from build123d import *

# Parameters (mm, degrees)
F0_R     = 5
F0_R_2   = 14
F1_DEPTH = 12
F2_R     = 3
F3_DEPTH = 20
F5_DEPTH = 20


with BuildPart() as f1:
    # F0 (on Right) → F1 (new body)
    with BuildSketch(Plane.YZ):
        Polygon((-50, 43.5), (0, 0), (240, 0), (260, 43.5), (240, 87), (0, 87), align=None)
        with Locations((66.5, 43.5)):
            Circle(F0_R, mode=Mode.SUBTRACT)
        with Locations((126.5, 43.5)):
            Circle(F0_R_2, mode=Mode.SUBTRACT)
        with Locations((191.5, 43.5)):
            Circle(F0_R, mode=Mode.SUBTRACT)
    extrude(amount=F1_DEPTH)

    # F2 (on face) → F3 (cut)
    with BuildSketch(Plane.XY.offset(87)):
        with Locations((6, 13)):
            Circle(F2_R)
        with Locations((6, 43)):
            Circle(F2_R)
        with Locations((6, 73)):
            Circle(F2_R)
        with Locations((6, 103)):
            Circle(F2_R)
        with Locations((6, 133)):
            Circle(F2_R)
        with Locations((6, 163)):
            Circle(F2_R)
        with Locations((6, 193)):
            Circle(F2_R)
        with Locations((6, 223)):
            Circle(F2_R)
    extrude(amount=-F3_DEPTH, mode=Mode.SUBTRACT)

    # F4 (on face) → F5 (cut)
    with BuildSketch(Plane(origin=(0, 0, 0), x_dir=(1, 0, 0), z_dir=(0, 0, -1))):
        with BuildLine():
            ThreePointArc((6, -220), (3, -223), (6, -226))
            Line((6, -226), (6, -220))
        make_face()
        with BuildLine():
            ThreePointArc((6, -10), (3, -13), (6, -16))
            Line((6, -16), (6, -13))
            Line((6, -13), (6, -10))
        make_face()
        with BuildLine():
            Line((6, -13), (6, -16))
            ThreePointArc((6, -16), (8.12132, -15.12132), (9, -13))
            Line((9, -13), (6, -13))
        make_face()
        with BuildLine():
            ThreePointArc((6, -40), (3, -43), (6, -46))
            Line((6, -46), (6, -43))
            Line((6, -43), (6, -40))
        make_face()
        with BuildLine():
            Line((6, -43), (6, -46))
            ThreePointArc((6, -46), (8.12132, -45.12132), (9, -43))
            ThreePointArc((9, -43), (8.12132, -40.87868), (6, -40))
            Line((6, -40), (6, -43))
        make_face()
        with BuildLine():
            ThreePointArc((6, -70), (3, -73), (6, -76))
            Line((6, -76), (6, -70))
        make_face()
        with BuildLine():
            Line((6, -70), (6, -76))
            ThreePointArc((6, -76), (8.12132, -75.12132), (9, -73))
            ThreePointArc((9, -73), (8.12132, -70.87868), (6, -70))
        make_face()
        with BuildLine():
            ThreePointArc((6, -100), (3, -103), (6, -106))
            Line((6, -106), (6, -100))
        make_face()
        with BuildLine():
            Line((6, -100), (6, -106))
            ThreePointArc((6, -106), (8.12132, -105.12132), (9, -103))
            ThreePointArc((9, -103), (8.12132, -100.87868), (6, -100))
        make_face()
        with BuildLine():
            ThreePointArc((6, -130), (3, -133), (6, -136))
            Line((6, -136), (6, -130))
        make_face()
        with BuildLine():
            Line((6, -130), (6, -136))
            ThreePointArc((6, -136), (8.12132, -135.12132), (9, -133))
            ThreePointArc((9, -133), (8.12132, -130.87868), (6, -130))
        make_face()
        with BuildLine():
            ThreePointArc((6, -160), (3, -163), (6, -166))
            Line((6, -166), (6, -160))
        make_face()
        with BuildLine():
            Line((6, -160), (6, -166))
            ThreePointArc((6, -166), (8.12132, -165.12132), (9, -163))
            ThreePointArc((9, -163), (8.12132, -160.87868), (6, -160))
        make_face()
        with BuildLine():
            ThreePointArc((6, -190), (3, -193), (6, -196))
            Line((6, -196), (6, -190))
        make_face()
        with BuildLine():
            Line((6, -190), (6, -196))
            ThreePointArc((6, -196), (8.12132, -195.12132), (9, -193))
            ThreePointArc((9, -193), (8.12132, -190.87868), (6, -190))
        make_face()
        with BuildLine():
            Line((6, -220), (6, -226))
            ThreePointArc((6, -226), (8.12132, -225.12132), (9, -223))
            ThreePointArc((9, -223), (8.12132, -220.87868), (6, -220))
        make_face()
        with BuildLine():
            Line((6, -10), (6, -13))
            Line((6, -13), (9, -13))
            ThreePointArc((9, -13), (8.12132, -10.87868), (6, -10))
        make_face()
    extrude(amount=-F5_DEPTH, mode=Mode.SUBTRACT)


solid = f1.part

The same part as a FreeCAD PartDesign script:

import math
import FreeCAD as App
import Part
import Sketcher


def add_polygon(sketch, points):
    """Adds a closed chain of lines whose ends are joined by coincident constraints."""
    first, n = sketch.GeometryCount, len(points)
    for a, b in zip(points, points[1:] + points[:1]):
        sketch.addGeometry(Part.LineSegment(App.Vector(*a, 0), App.Vector(*b, 0)), False)
    for i in range(n):
        sketch.addConstraint(Sketcher.Constraint("Coincident", first + i, 2, first + (i + 1) % n, 1))

doc = App.newDocument("Part")
params = doc.addObject("Spreadsheet::Sheet", "Params")
for row, (alias, value) in enumerate([
    ("sketch1_diameter", "10 mm"),
    ("sketch1_diameter2", "28 mm"),
    ("sketch1_width", "240 mm"),
    ("pad1_length", "12 mm"),
    ("sketch2_diameter", "6 mm"),
    ("pocket1_length", "20 mm"),
    ("sketch3_radius", "3 mm"),
    ("pocket2_length", "20 mm"),
], start=1):
    params.set(f"A{row}", alias)
    params.set(f"B{row}", "=" + value)
    params.setAlias(f"B{row}", alias)

body = doc.addObject("PartDesign::Body", "Body")

sketch1 = body.newObject("Sketcher::SketchObject", "Sketch")
sketch1.AttachmentSupport = (doc.getObject("YZ_Plane"), [""])
sketch1.MapMode = "FlatFace"
add_polygon(sketch1, [(-50, 43.5), (0, 0), (240, 0), (260, 43.5), (240, 87), (0, 87)])
sketch1.addGeometry(Part.Circle(App.Vector(66.5, 43.5, 0), App.Vector(0, 0, 1), 5), False)
sketch1.addGeometry(Part.Circle(App.Vector(126.5, 43.5, 0), App.Vector(0, 0, 1), 14), False)
sketch1.addGeometry(Part.Circle(App.Vector(191.5, 43.5, 0), App.Vector(0, 0, 1), 5), False)
sketch1.addConstraint([
    Sketcher.Constraint("Horizontal", 1),
    Sketcher.Constraint("Horizontal", 4),
    Sketcher.Constraint("Coincident", 0, 2, -1, 1),
    Sketcher.Constraint("Equal", 6, 8),
    Sketcher.Constraint("PointOnObject", 4, 2, -2),
    Sketcher.Constraint("Horizontal", 6, 3, 7, 3),
    Sketcher.Constraint("Horizontal", 7, 3, 8, 3),
    Sketcher.Constraint("Horizontal", 8, 3, 2, 2),
    Sketcher.Constraint("Horizontal", 2, 2, 5, 2),
    Sketcher.Constraint("Vertical", 1, 2, 3, 2),
    Sketcher.Constraint("Equal", 2, 3),
    Sketcher.Constraint("Diameter", 6, 10.0),
    Sketcher.Constraint("Diameter", 7, 28.0),
    Sketcher.Constraint("DistanceX", 1, 1, 1, 2, 240.0),
    Sketcher.Constraint("DistanceX", -1, 1, 2, 2, 260.0),
    Sketcher.Constraint("DistanceY", -1, 1, 3, 2, 87.0),
    Sketcher.Constraint("DistanceX", 5, 2, -1, 1, 50.0),
    Sketcher.Constraint("DistanceX", 6, 3, 7, 3, 60.0),
    Sketcher.Constraint("DistanceX", 7, 3, 8, 3, 65.0),
    Sketcher.Constraint("DistanceX", -1, 1, 6, 3, 66.5),
])
sketch1.setExpression("Constraints[17]", "Params.sketch1_diameter")
sketch1.setExpression("Constraints[18]", "Params.sketch1_diameter2")
sketch1.setExpression("Constraints[19]", "Params.sketch1_width")
pad1 = body.newObject("PartDesign::Pad", "Pad")
pad1.Profile = sketch1
pad1.setExpression("Length", "Params.pad1_length")

sketch2 = body.newObject("Sketcher::SketchObject", "Sketch001")
sketch2.AttachmentSupport = (doc.getObject("XY_Plane"), [""])
sketch2.MapMode = "FlatFace"
sketch2.AttachmentOffset = App.Placement(App.Vector(0, 0, 87), App.Rotation())
sketch2.addGeometry([
    Part.Circle(App.Vector(6, 13, 0), App.Vector(0, 0, 1), 3),
    Part.Circle(App.Vector(6, 43, 0), App.Vector(0, 0, 1), 3),
    Part.Circle(App.Vector(6, 73, 0), App.Vector(0, 0, 1), 3),
    Part.Circle(App.Vector(6, 103, 0), App.Vector(0, 0, 1), 3),
    Part.Circle(App.Vector(6, 133, 0), App.Vector(0, 0, 1), 3),
    Part.Circle(App.Vector(6, 163, 0), App.Vector(0, 0, 1), 3),
    Part.Circle(App.Vector(6, 193, 0), App.Vector(0, 0, 1), 3),
    Part.Circle(App.Vector(6, 223, 0), App.Vector(0, 0, 1), 3),
], False)
sketch2.addConstraint([
    Sketcher.Constraint("Equal", 0, 1),
    Sketcher.Constraint("Equal", 1, 2),
    Sketcher.Constraint("Equal", 2, 3),
    Sketcher.Constraint("Equal", 3, 4),
    Sketcher.Constraint("Equal", 4, 5),
    Sketcher.Constraint("Equal", 5, 6),
    Sketcher.Constraint("Equal", 6, 7),
    Sketcher.Constraint("Vertical", 0, 3, 1, 3),
    Sketcher.Constraint("Vertical", 1, 3, 2, 3),
    Sketcher.Constraint("Vertical", 2, 3, 3, 3),
    Sketcher.Constraint("Vertical", 3, 3, 4, 3),
    Sketcher.Constraint("Vertical", 4, 3, 5, 3),
    Sketcher.Constraint("Vertical", 5, 3, 6, 3),
    Sketcher.Constraint("Vertical", 6, 3, 7, 3),
    Sketcher.Constraint("Diameter", 0, 6.0),
    Sketcher.Constraint("DistanceX", -1, 1, 0, 3, 6.0),
    Sketcher.Constraint("DistanceY", -1, 1, 0, 3, 13.0),
    Sketcher.Constraint("DistanceY", -1, 1, 1, 3, 43.0),
    Sketcher.Constraint("DistanceY", -1, 1, 2, 3, 73.0),
    Sketcher.Constraint("DistanceY", -1, 1, 3, 3, 103.0),
    Sketcher.Constraint("DistanceY", -1, 1, 4, 3, 133.0),
    Sketcher.Constraint("DistanceY", -1, 1, 5, 3, 163.0),
    Sketcher.Constraint("DistanceY", -1, 1, 6, 3, 193.0),
    Sketcher.Constraint("DistanceY", -1, 1, 7, 3, 223.0),
])
sketch2.setExpression("Constraints[14]", "Params.sketch2_diameter")
pocket1 = body.newObject("PartDesign::Pocket", "Pocket")
pocket1.Profile = sketch2
pocket1.setExpression("Length", "Params.pocket1_length")

sketch3 = body.newObject("Sketcher::SketchObject", "Sketch002")
sketch3.AttachmentSupport = (doc.getObject("XY_Plane"), [""])
sketch3.MapMode = "FlatFace"
sketch3.addGeometry([
    Part.ArcOfCircle(Part.Circle(App.Vector(6, 223, 0), App.Vector(0, 0, 1), 3), math.radians(90), math.radians(270)),
    Part.ArcOfCircle(Part.Circle(App.Vector(5.999999, 222.999999, 0), App.Vector(0, 0, 1), 3.000001), math.radians(0.000022), math.radians(89.999978)),
    Part.ArcOfCircle(Part.Circle(App.Vector(5.999999, 223.000001, 0), App.Vector(0, 0, 1), 3.000001), math.radians(-89.999978), math.radians(-0.000022)),
    Part.ArcOfCircle(Part.Circle(App.Vector(6, 13, 0), App.Vector(0, 0, 1), 3), math.radians(90), math.radians(270)),
    Part.ArcOfCircle(Part.Circle(App.Vector(5.999999, 12.999999, 0), App.Vector(0, 0, 1), 3.000001), math.radians(0.000022), math.radians(89.999978)),
    Part.ArcOfCircle(Part.Circle(App.Vector(5.999999, 13.000001, 0), App.Vector(0, 0, 1), 3.000001), math.radians(-89.999978), math.radians(-0.000022)),
    Part.ArcOfCircle(Part.Circle(App.Vector(6, 43, 0), App.Vector(0, 0, 1), 3), math.radians(90), math.radians(270)),
    Part.ArcOfCircle(Part.Circle(App.Vector(5.999999, 42.999999, 0), App.Vector(0, 0, 1), 3.000001), math.radians(0.000022), math.radians(89.999978)),
    Part.ArcOfCircle(Part.Circle(App.Vector(5.999999, 43.000001, 0), App.Vector(0, 0, 1), 3.000001), math.radians(-89.999978), math.radians(-0.000022)),
    Part.ArcOfCircle(Part.Circle(App.Vector(6, 73, 0), App.Vector(0, 0, 1), 3), math.radians(90), math.radians(270)),
    Part.ArcOfCircle(Part.Circle(App.Vector(5.999999, 72.999999, 0), App.Vector(0, 0, 1), 3.000001), math.radians(0.000022), math.radians(89.999978)),
    Part.ArcOfCircle(Part.Circle(App.Vector(5.999999, 73.000001, 0), App.Vector(0, 0, 1), 3.000001), math.radians(-89.999978), math.radians(-0.000022)),
    Part.ArcOfCircle(Part.Circle(App.Vector(6, 103, 0), App.Vector(0, 0, 1), 3), math.radians(90), math.radians(270)),
    Part.ArcOfCircle(Part.Circle(App.Vector(5.999999, 102.999999, 0), App.Vector(0, 0, 1), 3.000001), math.radians(0.000022), math.radians(89.999978)),
    Part.ArcOfCircle(Part.Circle(App.Vector(5.999999, 103.000001, 0), App.Vector(0, 0, 1), 3.000001), math.radians(-89.999978), math.radians(-0.000022)),
    Part.ArcOfCircle(Part.Circle(App.Vector(6, 133, 0), App.Vector(0, 0, 1), 3), math.radians(90), math.radians(270)),
    Part.ArcOfCircle(Part.Circle(App.Vector(5.999999, 132.999999, 0), App.Vector(0, 0, 1), 3.000001), math.radians(0.000022), math.radians(89.999978)),
    Part.ArcOfCircle(Part.Circle(App.Vector(5.999999, 133.000001, 0), App.Vector(0, 0, 1), 3.000001), math.radians(-89.999978), math.radians(-0.000022)),
    Part.ArcOfCircle(Part.Circle(App.Vector(6, 163, 0), App.Vector(0, 0, 1), 3), math.radians(90), math.radians(270)),
    Part.ArcOfCircle(Part.Circle(App.Vector(5.999999, 162.999999, 0), App.Vector(0, 0, 1), 3.000001), math.radians(0.000022), math.radians(89.999978)),
    Part.ArcOfCircle(Part.Circle(App.Vector(5.999999, 163.000001, 0), App.Vector(0, 0, 1), 3.000001), math.radians(-89.999978), math.radians(-0.000022)),
    Part.ArcOfCircle(Part.Circle(App.Vector(6, 193, 0), App.Vector(0, 0, 1), 3), math.radians(90), math.radians(270)),
    Part.ArcOfCircle(Part.Circle(App.Vector(5.999999, 192.999999, 0), App.Vector(0, 0, 1), 3.000001), math.radians(0.000022), math.radians(89.999978)),
    Part.ArcOfCircle(Part.Circle(App.Vector(5.999999, 193.000001, 0), App.Vector(0, 0, 1), 3.000001), math.radians(-89.999978), math.radians(-0.000022)),
], False)
sketch3.addConstraint([
    Sketcher.Constraint("Tangent", 0, 1, 1, 2),
    Sketcher.Constraint("Tangent", 1, 1, 2, 2),
    Sketcher.Constraint("Tangent", 2, 1, 0, 2),
    Sketcher.Constraint("Tangent", 3, 1, 4, 2),
    Sketcher.Constraint("Tangent", 4, 1, 5, 2),
    Sketcher.Constraint("Tangent", 5, 1, 3, 2),
    Sketcher.Constraint("Tangent", 6, 1, 7, 2),
    Sketcher.Constraint("Tangent", 7, 1, 8, 2),
    Sketcher.Constraint("Tangent", 8, 1, 6, 2),
    Sketcher.Constraint("Tangent", 9, 1, 10, 2),
    Sketcher.Constraint("Tangent", 10, 1, 11, 2),
    Sketcher.Constraint("Tangent", 11, 1, 9, 2),
    Sketcher.Constraint("Tangent", 12, 1, 13, 2),
    Sketcher.Constraint("Tangent", 13, 1, 14, 2),
    Sketcher.Constraint("Tangent", 14, 1, 12, 2),
    Sketcher.Constraint("Tangent", 15, 1, 16, 2),
    Sketcher.Constraint("Tangent", 16, 1, 17, 2),
    Sketcher.Constraint("Tangent", 17, 1, 15, 2),
    Sketcher.Constraint("Tangent", 18, 1, 19, 2),
    Sketcher.Constraint("Tangent", 19, 1, 20, 2),
    Sketcher.Constraint("Tangent", 20, 1, 18, 2),
    Sketcher.Constraint("Tangent", 21, 1, 22, 2),
    Sketcher.Constraint("Tangent", 22, 1, 23, 2),
    Sketcher.Constraint("Tangent", 23, 1, 21, 2),
    Sketcher.Constraint("Equal", 2, 3),
    Sketcher.Constraint("Equal", 5, 6),
    Sketcher.Constraint("Equal", 8, 9),
    Sketcher.Constraint("Equal", 11, 12),
    Sketcher.Constraint("Equal", 14, 15),
    Sketcher.Constraint("Equal", 17, 18),
    Sketcher.Constraint("Equal", 20, 21),
    Sketcher.Constraint("Horizontal", 2, 3, 1, 1),
    Sketcher.Constraint("Horizontal", 5, 3, 4, 1),
    Sketcher.Constraint("Horizontal", 8, 3, 7, 1),
    Sketcher.Constraint("Horizontal", 11, 3, 10, 1),
    Sketcher.Constraint("Horizontal", 14, 3, 13, 1),
    Sketcher.Constraint("Horizontal", 17, 3, 16, 1),
    Sketcher.Constraint("Horizontal", 20, 3, 19, 1),
    Sketcher.Constraint("Horizontal", 23, 3, 22, 1),
    Sketcher.Constraint("Vertical", 2, 3, 3, 3),
    Sketcher.Constraint("Vertical", 5, 3, 6, 3),
    Sketcher.Constraint("Vertical", 8, 3, 9, 3),
    Sketcher.Constraint("Vertical", 11, 3, 12, 3),
    Sketcher.Constraint("Vertical", 14, 3, 15, 3),
    Sketcher.Constraint("Vertical", 17, 3, 18, 3),
    Sketcher.Constraint("Vertical", 20, 3, 21, 3),
    Sketcher.Constraint("Vertical", 23, 3, 0, 1),
    Sketcher.Constraint("Vertical", 0, 1, 2, 1),
    Sketcher.Constraint("Vertical", 2, 1, 3, 1),
    Sketcher.Constraint("Vertical", 3, 1, 5, 1),
    Sketcher.Constraint("Vertical", 5, 1, 6, 1),
    Sketcher.Constraint("Vertical", 6, 1, 8, 1),
    Sketcher.Constraint("Vertical", 8, 1, 9, 1),
    Sketcher.Constraint("Vertical", 9, 1, 11, 1),
    Sketcher.Constraint("Vertical", 11, 1, 12, 1),
    Sketcher.Constraint("Vertical", 12, 1, 14, 1),
    Sketcher.Constraint("Vertical", 14, 1, 15, 1),
    Sketcher.Constraint("Vertical", 15, 1, 17, 1),
    Sketcher.Constraint("Vertical", 17, 1, 18, 1),
    Sketcher.Constraint("Vertical", 18, 1, 20, 1),
    Sketcher.Constraint("Vertical", 20, 1, 21, 1),
    Sketcher.Constraint("Vertical", 21, 1, 23, 1),
    Sketcher.Constraint("Radius", 0, 3.0),
    Sketcher.Constraint("DistanceX", -1, 1, 0, 3, 6.0),
    Sketcher.Constraint("DistanceY", -1, 1, 0, 3, 223.0),
    Sketcher.Constraint("DistanceY", -1, 1, 3, 3, 13.0),
    Sketcher.Constraint("DistanceY", -1, 1, 6, 3, 43.0),
    Sketcher.Constraint("DistanceY", -1, 1, 9, 3, 73.0),
    Sketcher.Constraint("DistanceY", -1, 1, 12, 3, 103.0),
    Sketcher.Constraint("DistanceY", -1, 1, 15, 3, 133.0),
    Sketcher.Constraint("DistanceY", -1, 1, 18, 3, 163.0),
    Sketcher.Constraint("DistanceY", -1, 1, 21, 3, 193.0),
])
sketch3.setExpression("Constraints[62]", "Params.sketch3_radius")
pocket2 = body.newObject("PartDesign::Pocket", "Pocket001")
pocket2.Profile = sketch3
pocket2.setExpression("Length", "Params.pocket2_length")
pocket2.Reversed = True

doc.recompute()
